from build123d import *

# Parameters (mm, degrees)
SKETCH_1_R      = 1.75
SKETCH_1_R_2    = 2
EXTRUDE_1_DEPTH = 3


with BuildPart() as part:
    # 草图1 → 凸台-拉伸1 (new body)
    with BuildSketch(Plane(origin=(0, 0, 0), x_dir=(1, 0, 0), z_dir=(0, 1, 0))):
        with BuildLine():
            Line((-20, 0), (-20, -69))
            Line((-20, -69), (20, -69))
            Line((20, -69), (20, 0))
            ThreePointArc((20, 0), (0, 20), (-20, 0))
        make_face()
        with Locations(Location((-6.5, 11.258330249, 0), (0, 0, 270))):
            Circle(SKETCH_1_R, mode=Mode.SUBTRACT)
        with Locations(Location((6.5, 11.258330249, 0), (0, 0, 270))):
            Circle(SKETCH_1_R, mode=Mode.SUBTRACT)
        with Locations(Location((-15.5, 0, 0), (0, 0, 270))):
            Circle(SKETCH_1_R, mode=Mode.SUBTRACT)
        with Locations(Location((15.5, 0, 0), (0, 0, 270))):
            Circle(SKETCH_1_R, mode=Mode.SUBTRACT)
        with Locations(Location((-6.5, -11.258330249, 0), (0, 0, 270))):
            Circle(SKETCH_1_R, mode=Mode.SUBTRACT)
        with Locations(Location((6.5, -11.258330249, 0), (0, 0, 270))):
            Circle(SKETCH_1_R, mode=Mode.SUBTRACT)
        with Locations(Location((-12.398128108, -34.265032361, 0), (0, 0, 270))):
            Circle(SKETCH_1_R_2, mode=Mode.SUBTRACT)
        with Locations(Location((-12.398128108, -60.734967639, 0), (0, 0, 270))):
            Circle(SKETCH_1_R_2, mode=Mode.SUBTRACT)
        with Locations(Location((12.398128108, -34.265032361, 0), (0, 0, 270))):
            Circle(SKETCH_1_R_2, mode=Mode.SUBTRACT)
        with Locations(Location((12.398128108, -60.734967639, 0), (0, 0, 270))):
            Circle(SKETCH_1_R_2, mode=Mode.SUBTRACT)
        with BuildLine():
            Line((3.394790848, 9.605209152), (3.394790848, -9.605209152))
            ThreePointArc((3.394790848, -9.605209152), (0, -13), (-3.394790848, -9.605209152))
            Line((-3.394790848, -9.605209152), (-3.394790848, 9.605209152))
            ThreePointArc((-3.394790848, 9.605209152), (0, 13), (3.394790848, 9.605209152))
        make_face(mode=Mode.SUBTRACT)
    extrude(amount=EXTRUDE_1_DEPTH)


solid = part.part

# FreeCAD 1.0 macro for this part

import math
import FreeCAD as App
import Part
import Sketcher

V = App.Vector

doc = App.newDocument("Part")
body = doc.addObject("PartDesign::Body", "Body")

sketch1 = body.newObject("Sketcher::SketchObject", "Sketch")
sketch1.AttachmentSupport = (doc.getObject("XZ_Plane"), [""])
sketch1.MapMode = "FlatFace"
sketch1.addGeometry([
    Part.LineSegment(V(-20, 0, 0), V(-20, 69, 0)),
    Part.LineSegment(V(-20, 69, 0), V(20, 69, 0)),
    Part.LineSegment(V(20, 69, 0), V(20, 0, 0)),
    Part.ArcOfCircle(Part.Circle(V(0, 0, 0), V(0, 0, 1), 20), math.radians(180), math.radians(360)),
    Part.Circle(V(-12.4, 60.7, 0), V(0, 0, 1), 2),
    Part.Circle(V(-12.4, 34.3, 0), V(0, 0, 1), 2),
    Part.Circle(V(12.4, 60.7, 0), V(0, 0, 1), 2),
    Part.Circle(V(12.4, 34.3, 0), V(0, 0, 1), 2),
    Part.Circle(V(-6.5, 11.3, 0), V(0, 0, 1), 1.8),
    Part.Circle(V(-15.5, 0, 0), V(0, 0, 1), 1.8),
    Part.Circle(V(-6.5, -11.3, 0), V(0, 0, 1), 1.8),
    Part.Circle(V(6.5, 11.3, 0), V(0, 0, 1), 1.8),
    Part.ArcOfCircle(Part.Circle(V(0, -9.6, 0), V(0, 0, 1), 3.4), math.radians(180), math.radians(360)),
    Part.LineSegment(V(3.4, -9.6, 0), V(3.4, 9.6, 0)),
    Part.ArcOfCircle(Part.Circle(V(0, 9.6, 0), V(0, 0, 1), 3.4), math.radians(0), math.radians(180)),
    Part.LineSegment(V(-3.4, 9.6, 0), V(-3.4, -9.6, 0)),
    Part.Circle(V(6.5, -11.3, 0), V(0, 0, 1), 1.8),
    Part.Circle(V(15.5, 0, 0), V(0, 0, 1), 1.8),
], False)
sketch1.addConstraint([
    Sketcher.Constraint("Coincident", 0, 2, 1, 1),
    Sketcher.Constraint("Coincident", 1, 2, 2, 1),
    Sketcher.Constraint("Tangent", 2, 2, 3, 2),
    Sketcher.Constraint("Tangent", 3, 1, 0, 1),
    Sketcher.Constraint("Tangent", 12, 2, 13, 1),
    Sketcher.Constraint("Tangent", 13, 2, 14, 1),
    Sketcher.Constraint("Tangent", 14, 2, 15, 1),
    Sketcher.Constraint("Tangent", 15, 2, 12, 1),
    Sketcher.Constraint("Vertical", 0),
    Sketcher.Constraint("Horizontal", 1),
    Sketcher.Constraint("Vertical", 2),
    Sketcher.Constraint("Vertical", 13),
    Sketcher.Constraint("Vertical", 15),
    Sketcher.Constraint("Coincident", 3, 3, -1, 1),
    Sketcher.Constraint("Equal", 4, 5),
    Sketcher.Constraint("Equal", 5, 6),
    Sketcher.Constraint("Equal", 6, 7),
    Sketcher.Constraint("Equal", 8, 9),
    Sketcher.Constraint("Equal", 9, 10),
    Sketcher.Constraint("Equal", 10, 11),
    Sketcher.Constraint("Equal", 11, 16),
    Sketcher.Constraint("Equal", 16, 17),
    Sketcher.Constraint("Symmetric", 10, 3, 11, 3, -1, 1),
    Sketcher.Constraint("Symmetric", 12, 3, 14, 3, -1, 1),
    Sketcher.Constraint("Symmetric", 8, 3, 16, 3, -1, 1),
    Sketcher.Constraint("Symmetric", 9, 3, 17, 3, -1, 1),
    Sketcher.Constraint("Symmetric", 4, 3, 6, 3, -2),
    Sketcher.Constraint("Symmetric", 5, 3, 7, 3, -2),
    Sketcher.Constraint("Symmetric", 8, 3, 11, 3, -2),
    Sketcher.Constraint("PointOnObject", 9, 3, -1),
    Sketcher.Constraint("Vertical", 4, 3, 5, 3),
    Sketcher.Constraint("Diameter", 4, 4.0),
    Sketcher.Constraint("Radius", 3, 20.0),
    Sketcher.Constraint("Diameter", 8, 3.5),
    Sketcher.Constraint("DistanceY", 0, 1, 0, 2, 69.0),
    Sketcher.Constraint("DistanceX", 9, 3, 8, 3, 9.0),
    Sketcher.Constraint("DistanceX", 8, 3, 11, 3, 13.0),
    Sketcher.Constraint("Radius", 12, 3.394791),
    Sketcher.Constraint("DistanceY", 13, 1, 13, 2, 19.210418),
    Sketcher.Constraint("DistanceX", 4, 3, -1, 1, 12.398128),
    Sketcher.Constraint("DistanceY", -1, 1, 8, 3, 11.25833),
    Sketcher.Constraint("DistanceY", -1, 1, 4, 3, 60.734968),
    Sketcher.Constraint("DistanceY", -1, 1, 5, 3, 34.265032),
])
pad1 = body.newObject("PartDesign::Pad", "Pad")
pad1.Profile = sketch1
pad1.Length = 3
pad1.Reversed = True

doc.recompute()
